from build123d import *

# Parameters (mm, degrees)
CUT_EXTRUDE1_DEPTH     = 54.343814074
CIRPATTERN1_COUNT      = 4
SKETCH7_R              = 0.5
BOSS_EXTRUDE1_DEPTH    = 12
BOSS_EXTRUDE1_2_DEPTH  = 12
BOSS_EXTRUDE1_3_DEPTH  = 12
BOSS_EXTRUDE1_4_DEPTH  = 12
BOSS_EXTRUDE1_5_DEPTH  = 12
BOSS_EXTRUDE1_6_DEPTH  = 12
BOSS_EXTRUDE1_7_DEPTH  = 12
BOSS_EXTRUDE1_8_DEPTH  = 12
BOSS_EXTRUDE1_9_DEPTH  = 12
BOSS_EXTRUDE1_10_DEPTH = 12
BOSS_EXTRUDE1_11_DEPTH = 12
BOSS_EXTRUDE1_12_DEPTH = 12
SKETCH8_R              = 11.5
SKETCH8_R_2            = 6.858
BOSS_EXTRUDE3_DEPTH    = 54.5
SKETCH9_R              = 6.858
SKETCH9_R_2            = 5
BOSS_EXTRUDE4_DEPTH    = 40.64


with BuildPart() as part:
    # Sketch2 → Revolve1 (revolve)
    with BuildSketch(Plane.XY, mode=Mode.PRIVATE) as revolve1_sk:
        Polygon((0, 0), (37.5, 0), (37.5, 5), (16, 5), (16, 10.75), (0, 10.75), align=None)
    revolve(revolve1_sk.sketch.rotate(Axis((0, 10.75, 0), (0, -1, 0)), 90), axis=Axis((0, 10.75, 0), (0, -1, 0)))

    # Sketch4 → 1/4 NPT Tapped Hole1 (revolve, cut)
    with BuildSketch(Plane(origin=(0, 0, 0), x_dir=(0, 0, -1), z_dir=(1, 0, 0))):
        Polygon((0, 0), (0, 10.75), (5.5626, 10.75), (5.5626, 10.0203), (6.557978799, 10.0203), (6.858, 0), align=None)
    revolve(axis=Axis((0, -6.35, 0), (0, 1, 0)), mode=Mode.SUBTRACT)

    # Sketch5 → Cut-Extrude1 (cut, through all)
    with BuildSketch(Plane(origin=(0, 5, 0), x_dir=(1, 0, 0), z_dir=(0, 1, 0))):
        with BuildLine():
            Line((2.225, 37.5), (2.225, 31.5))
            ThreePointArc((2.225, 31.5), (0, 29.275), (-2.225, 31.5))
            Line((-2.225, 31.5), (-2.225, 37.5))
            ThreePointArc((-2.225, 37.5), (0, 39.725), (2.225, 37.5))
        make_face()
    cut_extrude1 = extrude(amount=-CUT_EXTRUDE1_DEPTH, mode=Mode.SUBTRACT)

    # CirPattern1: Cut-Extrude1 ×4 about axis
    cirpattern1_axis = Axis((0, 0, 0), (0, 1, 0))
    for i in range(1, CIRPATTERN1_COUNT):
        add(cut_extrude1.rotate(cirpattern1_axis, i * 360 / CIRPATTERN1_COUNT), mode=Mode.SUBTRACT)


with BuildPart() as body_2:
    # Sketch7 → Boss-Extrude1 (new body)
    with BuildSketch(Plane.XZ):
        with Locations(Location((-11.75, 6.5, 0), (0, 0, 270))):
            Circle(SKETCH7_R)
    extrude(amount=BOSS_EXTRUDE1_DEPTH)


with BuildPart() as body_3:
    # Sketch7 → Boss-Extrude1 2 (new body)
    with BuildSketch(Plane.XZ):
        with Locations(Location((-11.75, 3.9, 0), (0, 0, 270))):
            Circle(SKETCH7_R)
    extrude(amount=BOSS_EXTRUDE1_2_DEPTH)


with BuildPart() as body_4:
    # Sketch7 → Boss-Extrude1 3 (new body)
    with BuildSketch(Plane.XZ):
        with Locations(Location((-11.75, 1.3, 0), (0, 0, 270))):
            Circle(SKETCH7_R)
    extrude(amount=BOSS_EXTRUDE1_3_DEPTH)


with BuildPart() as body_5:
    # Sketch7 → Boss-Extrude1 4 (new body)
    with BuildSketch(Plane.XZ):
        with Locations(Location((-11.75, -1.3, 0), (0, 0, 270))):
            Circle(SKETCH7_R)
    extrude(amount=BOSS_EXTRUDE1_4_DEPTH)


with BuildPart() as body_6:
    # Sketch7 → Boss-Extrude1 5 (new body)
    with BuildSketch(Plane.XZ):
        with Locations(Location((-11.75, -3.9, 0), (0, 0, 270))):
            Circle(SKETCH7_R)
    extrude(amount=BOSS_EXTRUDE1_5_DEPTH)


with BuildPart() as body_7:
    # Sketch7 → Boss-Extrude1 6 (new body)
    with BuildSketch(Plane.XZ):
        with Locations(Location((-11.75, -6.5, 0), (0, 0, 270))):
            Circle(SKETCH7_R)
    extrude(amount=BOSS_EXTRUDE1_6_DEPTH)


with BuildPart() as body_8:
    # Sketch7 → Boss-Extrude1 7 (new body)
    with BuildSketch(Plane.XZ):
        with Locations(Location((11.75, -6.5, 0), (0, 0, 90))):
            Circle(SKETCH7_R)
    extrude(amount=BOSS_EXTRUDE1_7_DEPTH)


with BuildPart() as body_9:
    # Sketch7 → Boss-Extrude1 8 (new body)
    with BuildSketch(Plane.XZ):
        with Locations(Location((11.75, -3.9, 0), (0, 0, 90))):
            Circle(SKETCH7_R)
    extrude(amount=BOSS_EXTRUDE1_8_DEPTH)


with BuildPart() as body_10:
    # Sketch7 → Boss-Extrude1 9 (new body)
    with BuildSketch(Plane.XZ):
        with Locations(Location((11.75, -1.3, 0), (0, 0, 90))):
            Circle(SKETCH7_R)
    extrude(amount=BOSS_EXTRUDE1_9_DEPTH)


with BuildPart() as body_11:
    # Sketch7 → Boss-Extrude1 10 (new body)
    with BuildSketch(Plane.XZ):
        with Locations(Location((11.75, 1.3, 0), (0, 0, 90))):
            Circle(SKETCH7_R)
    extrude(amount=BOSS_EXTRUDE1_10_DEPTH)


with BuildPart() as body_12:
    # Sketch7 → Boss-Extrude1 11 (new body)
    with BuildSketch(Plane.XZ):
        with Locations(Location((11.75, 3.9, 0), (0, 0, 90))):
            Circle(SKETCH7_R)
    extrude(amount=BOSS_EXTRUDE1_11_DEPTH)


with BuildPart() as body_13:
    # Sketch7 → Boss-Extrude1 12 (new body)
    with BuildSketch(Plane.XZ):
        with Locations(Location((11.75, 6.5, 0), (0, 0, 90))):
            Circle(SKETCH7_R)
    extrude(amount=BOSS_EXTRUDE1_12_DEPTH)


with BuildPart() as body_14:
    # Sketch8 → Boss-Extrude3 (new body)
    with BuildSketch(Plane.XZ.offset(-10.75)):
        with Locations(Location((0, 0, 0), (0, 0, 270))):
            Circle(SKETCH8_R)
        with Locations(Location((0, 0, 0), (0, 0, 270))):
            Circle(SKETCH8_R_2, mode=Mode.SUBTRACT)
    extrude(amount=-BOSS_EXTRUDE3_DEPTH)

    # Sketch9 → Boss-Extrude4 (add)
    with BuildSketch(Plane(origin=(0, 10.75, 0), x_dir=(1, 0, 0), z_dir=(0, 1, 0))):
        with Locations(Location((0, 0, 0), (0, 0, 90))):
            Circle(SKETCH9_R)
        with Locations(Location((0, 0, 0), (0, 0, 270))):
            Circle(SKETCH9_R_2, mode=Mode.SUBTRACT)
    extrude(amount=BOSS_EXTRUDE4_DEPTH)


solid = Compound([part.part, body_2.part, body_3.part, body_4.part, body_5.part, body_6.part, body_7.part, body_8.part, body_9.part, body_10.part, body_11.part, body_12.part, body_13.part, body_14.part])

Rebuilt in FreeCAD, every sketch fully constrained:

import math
import FreeCAD as App
import Part
import Sketcher
from FreeCAD import Vector
Q = App.Units.Quantity

doc = App.newDocument("Part")
body = doc.addObject("PartDesign::Body", "Body")

# Sketch on XY plane
sketch1 = body.newObject("Sketcher::SketchObject", "Sketch")
sketch1.AttachmentSupport = (doc.getObject("XY_Plane"), [""])
sketch1.MapMode = "FlatFace"
sketch1.addGeometry(Part.LineSegment(Vector(0, 0, 0), Vector(38, 0, 0)), False)
sketch1.addGeometry(Part.LineSegment(Vector(38, 0, 0), Vector(38, 5, 0)), False)
sketch1.addGeometry(Part.LineSegment(Vector(38, 5, 0), Vector(16, 5, 0)), False)
sketch1.addGeometry(Part.LineSegment(Vector(16, 5, 0), Vector(16, 11, 0)), False)
sketch1.addGeometry(Part.LineSegment(Vector(16, 11, 0), Vector(0, 11, 0)), False)
sketch1.addGeometry(Part.LineSegment(Vector(0, 11, 0), Vector(0, 0, 0)), False)
sketch1.addConstraint(Sketcher.Constraint("Coincident", 0, 2, 1, 1))
sketch1.addConstraint(Sketcher.Constraint("Coincident", 1, 2, 2, 1))
sketch1.addConstraint(Sketcher.Constraint("Coincident", 2, 2, 3, 1))
sketch1.addConstraint(Sketcher.Constraint("Coincident", 3, 2, 4, 1))
sketch1.addConstraint(Sketcher.Constraint("Coincident", 4, 2, 5, 1))
sketch1.addConstraint(Sketcher.Constraint("Coincident", 5, 2, 0, 1))
sketch1.addConstraint(Sketcher.Constraint("Horizontal", 0))
sketch1.addConstraint(Sketcher.Constraint("Vertical", 1))
sketch1.addConstraint(Sketcher.Constraint("Horizontal", 2))
sketch1.addConstraint(Sketcher.Constraint("Vertical", 3))
sketch1.addConstraint(Sketcher.Constraint("Horizontal", 4))
sketch1.addConstraint(Sketcher.Constraint("Vertical", 5))
sketch1.addConstraint(Sketcher.Constraint("Coincident", 5, 2, -1, 1))
sketch1.addConstraint(Sketcher.Constraint("DistanceX", 4, 2, 4, 1, Q("16 mm")))
sketch1.addConstraint(Sketcher.Constraint("DistanceY", 1, 1, 1, 2, Q("5 mm")))
sketch1.addConstraint(Sketcher.Constraint("DistanceX", 0, 1, 0, 2, Q("37.5 mm")))
sketch1.addConstraint(Sketcher.Constraint("DistanceY", 3, 1, 3, 2, Q("5.75 mm")))
revolution = body.newObject("PartDesign::Revolution", "Revolution")
revolution.Profile = sketch1
revolution.ReferenceAxis = (sketch1, ["V_Axis"])
revolution.Angle = 360

# Sketch on YZ plane
sketch2 = body.newObject("Sketcher::SketchObject", "Sketch001")
sketch2.AttachmentSupport = (doc.getObject("YZ_Plane"), [""])
sketch2.MapMode = "FlatFace"
sketch2.addGeometry(Part.LineSegment(Vector(10.8, 0, 0), Vector(0, 0, 0)), False)
sketch2.addGeometry(Part.LineSegment(Vector(0, 0, 0), Vector(0, -6.9, 0)), False)
sketch2.addGeometry(Part.LineSegment(Vector(0, -6.9, 0), Vector(10, -6.6, 0)), False)
sketch2.addGeometry(Part.LineSegment(Vector(10, -6.6, 0), Vector(10, -5.6, 0)), False)
sketch2.addGeometry(Part.LineSegment(Vector(10, -5.6, 0), Vector(10.8, -5.6, 0)), False)
sketch2.addGeometry(Part.LineSegment(Vector(10.8, -5.6, 0), Vector(10.8, 0, 0)), False)
sketch2.addConstraint(Sketcher.Constraint("Coincident", 0, 2, 1, 1))
sketch2.addConstraint(Sketcher.Constraint("Coincident", 1, 2, 2, 1))
sketch2.addConstraint(Sketcher.Constraint("Coincident", 2, 2, 3, 1))
sketch2.addConstraint(Sketcher.Constraint("Coincident", 3, 2, 4, 1))
sketch2.addConstraint(Sketcher.Constraint("Coincident", 4, 2, 5, 1))
sketch2.addConstraint(Sketcher.Constraint("Coincident", 5, 2, 0, 1))
sketch2.addConstraint(Sketcher.Constraint("Horizontal", 0))
sketch2.addConstraint(Sketcher.Constraint("Vertical", 1))
sketch2.addConstraint(Sketcher.Constraint("Vertical", 3))
sketch2.addConstraint(Sketcher.Constraint("Horizontal", 4))
sketch2.addConstraint(Sketcher.Constraint("Vertical", 5))
sketch2.addConstraint(Sketcher.Constraint("Coincident", 0, 2, -1, 1))
sketch2.addConstraint(Sketcher.Constraint("DistanceX", 0, 2, 0, 1, Q("10.75 mm")))
sketch2.addConstraint(Sketcher.Constraint("DistanceY", 1, 2, 1, 1, Q("6.858 mm")))
sketch2.addConstraint(Sketcher.Constraint("DistanceX", 4, 1, 4, 2, Q("0.7297 mm")))
sketch2.addConstraint(Sketcher.Constraint("DistanceY", 5, 1, 5, 2, Q("5.5626 mm")))
sketch2.addConstraint(Sketcher.Constraint("DistanceY", 3, 1, 3, 2, Q("0.995379 mm")))
groove = body.newObject("PartDesign::Groove", "Groove")
groove.Profile = sketch2
groove.ReferenceAxis = (sketch2, ["H_Axis"])
groove.Angle = 360

# Sketch on XZ plane
sketch3 = body.newObject("Sketcher::SketchObject", "Sketch002")
sketch3.AttachmentSupport = (doc.getObject("XZ_Plane"), [""])
sketch3.MapMode = "FlatFace"
sketch3.AttachmentOffset = App.Placement(Vector(0, 0, -5), App.Rotation())
sketch3.addGeometry(Part.LineSegment(Vector(2.2, -31.5, 0), Vector(2.2, -37.5, 0)), False)
sketch3.addGeometry(Part.ArcOfCircle(Part.Circle(Vector(0, -37.5, 0), Vector(0, 0, 1), 2.2), math.radians(180), math.radians(360)), False)
sketch3.addGeometry(Part.LineSegment(Vector(-2.2, -37.5, 0), Vector(-2.2, -31.5, 0)), False)
sketch3.addGeometry(Part.ArcOfCircle(Part.Circle(Vector(0, -31.5, 0), Vector(0, 0, 1), 2.2), math.radians(0), math.radians(180)), False)
sketch3.addConstraint(Sketcher.Constraint("Tangent", 0, 2, 1, 2))
sketch3.addConstraint(Sketcher.Constraint("Tangent", 1, 1, 2, 1))
sketch3.addConstraint(Sketcher.Constraint("Tangent", 2, 2, 3, 2))
sketch3.addConstraint(Sketcher.Constraint("Tangent", 3, 1, 0, 1))
sketch3.addConstraint(Sketcher.Constraint("Vertical", 0))
sketch3.addConstraint(Sketcher.Constraint("Vertical", 2))
sketch3.addConstraint(Sketcher.Constraint("PointOnObject", 1, 3, -2))
sketch3.addConstraint(Sketcher.Constraint("DistanceY", 0, 2, 0, 1, Q("6 mm")))
sketch3.addConstraint(Sketcher.Constraint("Radius", 1, Q("2.225 mm")))
sketch3.addConstraint(Sketcher.Constraint("DistanceY", 1, 3, -1, 1, Q("37.5 mm")))
pocket1 = body.newObject("PartDesign::Pocket", "Pocket")
pocket1.Profile = sketch3
pocket1.Type = "ThroughAll"
pocket1.Reversed = True
doc.recompute()

polarpattern = body.newObject("PartDesign::PolarPattern", "PolarPattern")
polarpattern.Originals = [pocket1]
polarpattern.Axis = (doc.getObject("Y_Axis"), [""])
polarpattern.Angle = 360
polarpattern.Occurrences = 4
body.Tip = polarpattern
body2 = doc.addObject("PartDesign::Body", "Body001")

# Sketch on XZ plane
sketch4 = body2.newObject("Sketcher::SketchObject", "Sketch003")
sketch4.AttachmentSupport = (doc.getObject("XZ_Plane001"), [""])
sketch4.MapMode = "FlatFace"
sketch4.addGeometry(Part.Circle(Vector(-11.8, 6.5, 0), Vector(0, 0, 1), 0.5), False)
sketch4.addConstraint(Sketcher.Constraint("Diameter", 0, Q("1 mm")))
sketch4.addConstraint(Sketcher.Constraint("DistanceY", -1, 1, 0, 3, Q("6.5 mm")))
sketch4.addConstraint(Sketcher.Constraint("DistanceX", 0, 3, -1, 1, Q("11.75 mm")))
pad1 = body2.newObject("PartDesign::Pad", "Pad")
pad1.Profile = sketch4
pad1.Length = 12
body3 = doc.addObject("PartDesign::Body", "Body002")

# Sketch on XZ plane
sketch5 = body3.newObject("Sketcher::SketchObject", "Sketch004")
sketch5.AttachmentSupport = (doc.getObject("XZ_Plane002"), [""])
sketch5.MapMode = "FlatFace"
sketch5.addGeometry(Part.Circle(Vector(-11.8, 3.9, 0), Vector(0, 0, 1), 0.5), False)
sketch5.addConstraint(Sketcher.Constraint("Diameter", 0, Q("1 mm")))
sketch5.addConstraint(Sketcher.Constraint("DistanceY", -1, 1, 0, 3, Q("3.9 mm")))
sketch5.addConstraint(Sketcher.Constraint("DistanceX", 0, 3, -1, 1, Q("11.75 mm")))
pad2 = body3.newObject("PartDesign::Pad", "Pad001")
pad2.Profile = sketch5
pad2.Length = 12
body4 = doc.addObject("PartDesign::Body", "Body003")

# Sketch on XZ plane
sketch6 = body4.newObject("Sketcher::SketchObject", "Sketch005")
sketch6.AttachmentSupport = (doc.getObject("XZ_Plane003"), [""])
sketch6.MapMode = "FlatFace"
sketch6.addGeometry(Part.Circle(Vector(-11.8, 1.3, 0), Vector(0, 0, 1), 0.5), False)
sketch6.addConstraint(Sketcher.Constraint("Diameter", 0, Q("1 mm")))
sketch6.addConstraint(Sketcher.Constraint("DistanceY", -1, 1, 0, 3, Q("1.3 mm")))
sketch6.addConstraint(Sketcher.Constraint("DistanceX", 0, 3, -1, 1, Q("11.75 mm")))
pad3 = body4.newObject("PartDesign::Pad", "Pad002")
pad3.Profile = sketch6
pad3.Length = 12
body5 = doc.addObject("PartDesign::Body", "Body004")

# Sketch on XZ plane
sketch7 = body5.newObject("Sketcher::SketchObject", "Sketch006")
sketch7.AttachmentSupport = (doc.getObject("XZ_Plane004"), [""])
sketch7.MapMode = "FlatFace"
sketch7.addGeometry(Part.Circle(Vector(-11.8, -1.3, 0), Vector(0, 0, 1), 0.5), False)
sketch7.addConstraint(Sketcher.Constraint("Diameter", 0, Q("1 mm")))
sketch7.addConstraint(Sketcher.Constraint("DistanceY", 0, 3, -1, 1, Q("1.3 mm")))
sketch7.addConstraint(Sketcher.Constraint("DistanceX", 0, 3, -1, 1, Q("11.75 mm")))
pad4 = body5.newObject("PartDesign::Pad", "Pad003")
pad4.Profile = sketch7
pad4.Length = 12
body6 = doc.addObject("PartDesign::Body", "Body005")

# Sketch on XZ plane
sketch8 = body6.newObject("Sketcher::SketchObject", "Sketch007")
sketch8.AttachmentSupport = (doc.getObject("XZ_Plane005"), [""])
sketch8.MapMode = "FlatFace"
sketch8.addGeometry(Part.Circle(Vector(-11.8, -3.9, 0), Vector(0, 0, 1), 0.5), False)
sketch8.addConstraint(Sketcher.Constraint("Diameter", 0, Q("1 mm")))
sketch8.addConstraint(Sketcher.Constraint("DistanceY", 0, 3, -1, 1, Q("3.9 mm")))
sketch8.addConstraint(Sketcher.Constraint("DistanceX", 0, 3, -1, 1, Q("11.75 mm")))
pad5 = body6.newObject("PartDesign::Pad", "Pad004")
pad5.Profile = sketch8
pad5.Length = 12
body7 = doc.addObject("PartDesign::Body", "Body006")

# Sketch on XZ plane
sketch9 = body7.newObject("Sketcher::SketchObject", "Sketch008")
sketch9.AttachmentSupport = (doc.getObject("XZ_Plane006"), [""])
sketch9.MapMode = "FlatFace"
sketch9.addGeometry(Part.Circle(Vector(-11.8, -6.5, 0), Vector(0, 0, 1), 0.5), False)
sketch9.addConstraint(Sketcher.Constraint("Diameter", 0, Q("1 mm")))
sketch9.addConstraint(Sketcher.Constraint("DistanceY", 0, 3, -1, 1, Q("6.5 mm")))
sketch9.addConstraint(Sketcher.Constraint("DistanceX", 0, 3, -1, 1, Q("11.75 mm")))
pad6 = body7.newObject("PartDesign::Pad", "Pad005")
pad6.Profile = sketch9
pad6.Length = 12
body8 = doc.addObject("PartDesign::Body", "Body007")

# Sketch on XZ plane
sketch10 = body8.newObject("Sketcher::SketchObject", "Sketch009")
sketch10.AttachmentSupport = (doc.getObject("XZ_Plane007"), [""])
sketch10.MapMode = "FlatFace"
sketch10.addGeometry(Part.Circle(Vector(11.8, -6.5, 0), Vector(0, 0, 1), 0.5), False)
sketch10.addConstraint(Sketcher.Constraint("Diameter", 0, Q("1 mm")))
sketch10.addConstraint(Sketcher.Constraint("DistanceY", 0, 3, -1, 1, Q("6.5 mm")))
sketch10.addConstraint(Sketcher.Constraint("DistanceX", -1, 1, 0, 3, Q("11.75 mm")))
pad7 = body8.newObject("PartDesign::Pad", "Pad006")
pad7.Profile = sketch10
pad7.Length = 12
body9 = doc.addObject("PartDesign::Body", "Body008")

# Sketch on XZ plane
sketch11 = body9.newObject("Sketcher::SketchObject", "Sketch010")
sketch11.AttachmentSupport = (doc.getObject("XZ_Plane008"), [""])
sketch11.MapMode = "FlatFace"
sketch11.addGeometry(Part.Circle(Vector(11.8, -3.9, 0), Vector(0, 0, 1), 0.5), False)
sketch11.addConstraint(Sketcher.Constraint("Diameter", 0, Q("1 mm")))
sketch11.addConstraint(Sketcher.Constraint("DistanceY", 0, 3, -1, 1, Q("3.9 mm")))
sketch11.addConstraint(Sketcher.Constraint("DistanceX", -1, 1, 0, 3, Q("11.75 mm")))
pad8 = body9.newObject("PartDesign::Pad", "Pad007")
pad8.Profile = sketch11
pad8.Length = 12
body10 = doc.addObject("PartDesign::Body", "Body009")

# Sketch on XZ plane
sketch12 = body10.newObject("Sketcher::SketchObject", "Sketch011")
sketch12.AttachmentSupport = (doc.getObject("XZ_Plane009"), [""])
sketch12.MapMode = "FlatFace"
sketch12.addGeometry(Part.Circle(Vector(11.8, -1.3, 0), Vector(0, 0, 1), 0.5), False)
sketch12.addConstraint(Sketcher.Constraint("Diameter", 0, Q("1 mm")))
sketch12.addConstraint(Sketcher.Constraint("DistanceY", 0, 3, -1, 1, Q("1.3 mm")))
sketch12.addConstraint(Sketcher.Constraint("DistanceX", -1, 1, 0, 3, Q("11.75 mm")))
pad9 = body10.newObject("PartDesign::Pad", "Pad008")
pad9.Profile = sketch12
pad9.Length = 12
body11 = doc.addObject("PartDesign::Body", "Body010")

# Sketch on XZ plane
sketch13 = body11.newObject("Sketcher::SketchObject", "Sketch012")
sketch13.AttachmentSupport = (doc.getObject("XZ_Plane010"), [""])
sketch13.MapMode = "FlatFace"
sketch13.addGeometry(Part.Circle(Vector(11.8, 1.3, 0), Vector(0, 0, 1), 0.5), False)
sketch13.addConstraint(Sketcher.Constraint("Diameter", 0, Q("1 mm")))
sketch13.addConstraint(Sketcher.Constraint("DistanceY", -1, 1, 0, 3, Q("1.3 mm")))
sketch13.addConstraint(Sketcher.Constraint("DistanceX", -1, 1, 0, 3, Q("11.75 mm")))
pad10 = body11.newObject("PartDesign::Pad", "Pad009")
pad10.Profile = sketch13
pad10.Length = 12
body12 = doc.addObject("PartDesign::Body", "Body011")

# Sketch on XZ plane
sketch14 = body12.newObject("Sketcher::SketchObject", "Sketch013")
sketch14.AttachmentSupport = (doc.getObject("XZ_Plane011"), [""])
sketch14.MapMode = "FlatFace"
sketch14.addGeometry(Part.Circle(Vector(11.8, 3.9, 0), Vector(0, 0, 1), 0.5), False)
sketch14.addConstraint(Sketcher.Constraint("Diameter", 0, Q("1 mm")))
sketch14.addConstraint(Sketcher.Constraint("DistanceY", -1, 1, 0, 3, Q("3.9 mm")))
sketch14.addConstraint(Sketcher.Constraint("DistanceX", -1, 1, 0, 3, Q("11.75 mm")))
pad11 = body12.newObject("PartDesign::Pad", "Pad010")
pad11.Profile = sketch14
pad11.Length = 12
body13 = doc.addObject("PartDesign::Body", "Body012")

# Sketch on XZ plane
sketch15 = body13.newObject("Sketcher::SketchObject", "Sketch014")
sketch15.AttachmentSupport = (doc.getObject("XZ_Plane012"), [""])
sketch15.MapMode = "FlatFace"
sketch15.addGeometry(Part.Circle(Vector(11.8, 6.5, 0), Vector(0, 0, 1), 0.5), False)
sketch15.addConstraint(Sketcher.Constraint("Diameter", 0, Q("1 mm")))
sketch15.addConstraint(Sketcher.Constraint("DistanceY", -1, 1, 0, 3, Q("6.5 mm")))
sketch15.addConstraint(Sketcher.Constraint("DistanceX", -1, 1, 0, 3, Q("11.75 mm")))
pad12 = body13.newObject("PartDesign::Pad", "Pad011")
pad12.Profile = sketch15
pad12.Length = 12
body14 = doc.addObject("PartDesign::Body", "Body013")

# Sketch on XZ plane
sketch16 = body14.newObject("Sketcher::SketchObject", "Sketch015")
sketch16.AttachmentSupport = (doc.getObject("XZ_Plane013"), [""])
sketch16.MapMode = "FlatFace"
sketch16.AttachmentOffset = App.Placement(Vector(0, 0, -10.75), App.Rotation())
sketch16.addGeometry(Part.Circle(Vector(0, 0, 0), Vector(0, 0, 1), 12), False)
sketch16.addGeometry(Part.Circle(Vector(0, 0, 0), Vector(0, 0, 1), 7), False)
sketch16.addConstraint(Sketcher.Constraint("Coincident", 0, 3, -1, 1))
sketch16.addConstraint(Sketcher.Constraint("Coincident", 1, 3, -1, 1))
sketch16.addConstraint(Sketcher.Constraint("Diameter", 0, Q("23 mm")))
sketch16.addConstraint(Sketcher.Constraint("Diameter", 1, Q("13.716 mm")))
pad13 = body14.newObject("PartDesign::Pad", "Pad012")
pad13.Profile = sketch16
pad13.Length = 54.5
pad13.Reversed = True

# Sketch on XZ plane
sketch17 = body14.newObject("Sketcher::SketchObject", "Sketch016")
sketch17.AttachmentSupport = (doc.getObject("XZ_Plane013"), [""])
sketch17.MapMode = "FlatFace"
sketch17.AttachmentOffset = App.Placement(Vector(0, 0, -10.75), App.Rotation())
sketch17.addGeometry(Part.Circle(Vector(0, 0, 0), Vector(0, 0, 1), 7), False)
sketch17.addGeometry(Part.Circle(Vector(0, 0, 0), Vector(0, 0, 1), 5), False)
sketch17.addConstraint(Sketcher.Constraint("Coincident", 0, 3, -1, 1))
sketch17.addConstraint(Sketcher.Constraint("Coincident", 1, 3, -1, 1))
sketch17.addConstraint(Sketcher.Constraint("Diameter", 1, Q("10 mm")))
sketch17.addConstraint(Sketcher.Constraint("Diameter", 0, Q("13.716 mm")))
pad14 = body14.newObject("PartDesign::Pad", "Pad013")
pad14.Profile = sketch17
pad14.Length = 40.64
pad14.Reversed = True

doc.recompute()
